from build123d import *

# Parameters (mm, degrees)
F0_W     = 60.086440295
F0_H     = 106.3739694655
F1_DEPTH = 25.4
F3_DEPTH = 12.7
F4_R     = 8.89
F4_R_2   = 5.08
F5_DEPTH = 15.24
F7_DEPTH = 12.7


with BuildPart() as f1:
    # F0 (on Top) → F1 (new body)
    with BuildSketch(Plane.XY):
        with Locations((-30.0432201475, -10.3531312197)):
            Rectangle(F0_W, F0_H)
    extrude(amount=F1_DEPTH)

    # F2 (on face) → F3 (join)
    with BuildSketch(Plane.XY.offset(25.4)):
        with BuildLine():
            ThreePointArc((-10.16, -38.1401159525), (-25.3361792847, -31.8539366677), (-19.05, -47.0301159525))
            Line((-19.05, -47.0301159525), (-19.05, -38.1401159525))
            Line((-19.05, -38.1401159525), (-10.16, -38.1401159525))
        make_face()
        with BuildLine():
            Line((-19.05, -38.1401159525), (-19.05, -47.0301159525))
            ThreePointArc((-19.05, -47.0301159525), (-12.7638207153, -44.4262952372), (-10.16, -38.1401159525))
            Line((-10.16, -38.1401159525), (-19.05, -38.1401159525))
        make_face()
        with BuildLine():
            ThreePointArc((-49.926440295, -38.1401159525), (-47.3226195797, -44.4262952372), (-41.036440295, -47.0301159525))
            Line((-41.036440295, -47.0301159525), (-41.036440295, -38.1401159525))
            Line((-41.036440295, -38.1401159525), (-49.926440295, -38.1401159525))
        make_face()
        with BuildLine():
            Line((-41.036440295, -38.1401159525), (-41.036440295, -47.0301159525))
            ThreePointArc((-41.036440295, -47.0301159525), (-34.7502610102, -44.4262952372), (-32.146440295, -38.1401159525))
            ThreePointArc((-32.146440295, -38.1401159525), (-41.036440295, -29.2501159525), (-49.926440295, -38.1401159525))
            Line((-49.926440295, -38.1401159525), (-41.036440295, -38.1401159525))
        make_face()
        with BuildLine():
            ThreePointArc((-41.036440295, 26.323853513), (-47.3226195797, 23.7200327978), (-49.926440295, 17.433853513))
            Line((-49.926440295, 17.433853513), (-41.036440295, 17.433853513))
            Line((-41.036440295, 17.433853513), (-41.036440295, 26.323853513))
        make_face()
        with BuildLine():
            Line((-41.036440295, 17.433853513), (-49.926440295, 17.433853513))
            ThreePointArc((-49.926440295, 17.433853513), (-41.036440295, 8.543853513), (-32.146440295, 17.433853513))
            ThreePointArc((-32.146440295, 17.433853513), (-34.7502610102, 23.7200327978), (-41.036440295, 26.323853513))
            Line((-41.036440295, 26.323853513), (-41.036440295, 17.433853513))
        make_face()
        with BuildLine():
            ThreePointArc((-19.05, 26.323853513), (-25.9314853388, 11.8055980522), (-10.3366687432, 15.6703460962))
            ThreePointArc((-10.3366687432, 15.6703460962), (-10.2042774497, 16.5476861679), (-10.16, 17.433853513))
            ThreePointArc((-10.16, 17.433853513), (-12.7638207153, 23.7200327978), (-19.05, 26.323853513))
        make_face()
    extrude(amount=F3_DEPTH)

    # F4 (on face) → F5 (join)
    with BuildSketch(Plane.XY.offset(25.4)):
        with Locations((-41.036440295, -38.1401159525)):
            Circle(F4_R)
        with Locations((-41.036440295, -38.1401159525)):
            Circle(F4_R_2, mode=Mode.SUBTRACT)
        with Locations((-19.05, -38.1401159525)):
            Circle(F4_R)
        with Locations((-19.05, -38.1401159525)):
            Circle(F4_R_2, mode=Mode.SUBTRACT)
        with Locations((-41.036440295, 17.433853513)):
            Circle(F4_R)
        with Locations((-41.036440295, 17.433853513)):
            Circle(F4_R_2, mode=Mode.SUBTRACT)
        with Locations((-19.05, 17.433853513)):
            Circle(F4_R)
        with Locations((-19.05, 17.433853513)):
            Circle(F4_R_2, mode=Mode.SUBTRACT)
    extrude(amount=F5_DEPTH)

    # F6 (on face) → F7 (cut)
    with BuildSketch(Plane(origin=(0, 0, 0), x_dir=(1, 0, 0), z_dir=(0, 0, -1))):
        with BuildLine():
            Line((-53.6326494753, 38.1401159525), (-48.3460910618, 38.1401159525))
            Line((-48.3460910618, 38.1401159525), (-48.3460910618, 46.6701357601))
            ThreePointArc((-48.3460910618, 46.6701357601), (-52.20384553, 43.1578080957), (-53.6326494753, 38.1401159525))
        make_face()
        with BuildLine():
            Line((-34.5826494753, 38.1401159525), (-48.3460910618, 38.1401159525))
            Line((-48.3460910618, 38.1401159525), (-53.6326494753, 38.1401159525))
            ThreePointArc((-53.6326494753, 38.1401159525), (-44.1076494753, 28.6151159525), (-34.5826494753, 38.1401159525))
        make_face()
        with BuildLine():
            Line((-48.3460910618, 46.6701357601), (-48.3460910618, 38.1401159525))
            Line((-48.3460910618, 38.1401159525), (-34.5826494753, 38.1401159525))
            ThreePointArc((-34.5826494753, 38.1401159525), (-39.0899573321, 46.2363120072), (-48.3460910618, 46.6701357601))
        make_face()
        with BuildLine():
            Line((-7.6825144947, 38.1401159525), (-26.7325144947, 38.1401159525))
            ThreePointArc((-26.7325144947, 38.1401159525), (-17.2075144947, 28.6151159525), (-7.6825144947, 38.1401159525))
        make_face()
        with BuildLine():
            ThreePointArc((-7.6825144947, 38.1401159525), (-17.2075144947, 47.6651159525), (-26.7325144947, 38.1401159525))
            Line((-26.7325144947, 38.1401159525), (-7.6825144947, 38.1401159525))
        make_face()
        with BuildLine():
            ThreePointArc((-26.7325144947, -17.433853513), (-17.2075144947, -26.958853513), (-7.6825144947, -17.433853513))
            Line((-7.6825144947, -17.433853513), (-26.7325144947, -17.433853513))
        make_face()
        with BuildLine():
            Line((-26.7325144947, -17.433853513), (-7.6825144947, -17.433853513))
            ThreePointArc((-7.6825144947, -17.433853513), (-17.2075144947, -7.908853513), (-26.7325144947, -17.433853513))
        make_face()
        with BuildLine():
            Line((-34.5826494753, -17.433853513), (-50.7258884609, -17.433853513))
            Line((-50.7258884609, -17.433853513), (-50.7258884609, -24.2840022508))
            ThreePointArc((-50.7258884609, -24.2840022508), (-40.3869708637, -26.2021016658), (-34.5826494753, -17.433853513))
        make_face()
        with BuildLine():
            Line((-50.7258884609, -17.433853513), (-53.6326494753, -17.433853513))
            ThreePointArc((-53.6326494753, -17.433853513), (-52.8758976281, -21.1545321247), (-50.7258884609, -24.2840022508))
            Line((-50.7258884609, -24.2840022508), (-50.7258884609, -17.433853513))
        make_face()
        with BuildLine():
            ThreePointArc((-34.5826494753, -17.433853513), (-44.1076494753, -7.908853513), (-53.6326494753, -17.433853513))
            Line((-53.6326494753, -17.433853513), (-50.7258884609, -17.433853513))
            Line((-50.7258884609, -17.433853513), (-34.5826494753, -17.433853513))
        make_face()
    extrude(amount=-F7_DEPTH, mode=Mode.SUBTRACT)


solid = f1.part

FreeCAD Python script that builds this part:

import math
import FreeCAD as App
import Part
import Sketcher

V = App.Vector
Q = App.Units.Quantity

doc = App.newDocument("Part")
params = doc.addObject("Spreadsheet::Sheet", "Params")
for row, (alias, value) in enumerate([
    ("pad1_length", "1 in"),
    ("sketch2_radius", "0.35 in"),
    ("pad2_length", "0.5 in"),
    ("sketch3_diameter", "0.7 in"),
    ("sketch3_diameter2", "0.4 in"),
    ("pad3_length", "0.6 in"),
    ("sketch4_diameter", "0.75 in"),
    ("pocket1_length", "0.5 in"),
], start=1):
    params.set(f"A{row}", alias)
    params.set(f"B{row}", "=" + value)
    params.setAlias(f"B{row}", alias)

body = doc.addObject("PartDesign::Body", "Body")

sketch1 = body.newObject("Sketcher::SketchObject", "Sketch")
sketch1.AttachmentSupport = (doc.getObject("XY_Plane"), [""])
sketch1.MapMode = "FlatFace"
sketch1.addGeometry([
    Part.LineSegment(V(-60, 43, 0), V(-60, -64, 0)),
    Part.LineSegment(V(-60, -64, 0), V(0, -64, 0)),
    Part.LineSegment(V(0, -64, 0), V(0, 43, 0)),
    Part.LineSegment(V(0, 43, 0), V(-60, 43, 0)),
], False)
sketch1.addConstraint([
    Sketcher.Constraint("Coincident", 0, 2, 1, 1),
    Sketcher.Constraint("Coincident", 1, 2, 2, 1),
    Sketcher.Constraint("Coincident", 2, 2, 3, 1),
    Sketcher.Constraint("Coincident", 3, 2, 0, 1),
    Sketcher.Constraint("Vertical", 0),
    Sketcher.Constraint("Horizontal", 1),
    Sketcher.Constraint("Vertical", 2),
    Sketcher.Constraint("Horizontal", 3),
    Sketcher.Constraint("PointOnObject", 1, 2, -2),
    Sketcher.Constraint("DistanceX", 1, 1, 1, 2, 60.08644),
    Sketcher.Constraint("DistanceY", 0, 2, 0, 1, 106.373969),
    Sketcher.Constraint("DistanceY", 0, 2, -1, 1, 63.540116),
])
pad1 = body.newObject("PartDesign::Pad", "Pad")
pad1.Profile = sketch1
pad1.setExpression("Length", "Params.pad1_length")

sketch2 = body.newObject("Sketcher::SketchObject", "Sketch001")
sketch2.AttachmentSupport = (doc.getObject("XY_Plane"), [""])
sketch2.MapMode = "FlatFace"
sketch2.AttachmentOffset = App.Placement(V(0, 0, 1 * 25.4), App.Rotation())
sketch2.addGeometry([
    Part.ArcOfCircle(Part.Circle(V(-19.1, -38.1, 0), V(0, 0, 1), 8.9), math.radians(0), math.radians(270)),
    Part.ArcOfCircle(Part.Circle(V(-19.1, -38.1, 0), V(0, 0, 1), 8.9), math.radians(-90), math.radians(0)),
    Part.ArcOfCircle(Part.Circle(V(-41, -38.1, 0), V(0, 0, 1), 8.9), math.radians(180), math.radians(270)),
    Part.ArcOfCircle(Part.Circle(V(-41, -38.1, 0), V(0, 0, 1), 8.9), math.radians(-90), math.radians(180)),
    Part.ArcOfCircle(Part.Circle(V(-41, 17.4, 0), V(0, 0, 1), 8.9), math.radians(90), math.radians(360)),
    Part.ArcOfCircle(Part.Circle(V(-41, 17.4, 0), V(0, 0, 1), 8.9), math.radians(0), math.radians(90)),
    Part.ArcOfCircle(Part.Circle(V(-19.1, 17.4, 0), V(0, 0, 1), 8.9), math.radians(90), math.radians(349)),
    Part.ArcOfCircle(Part.Circle(V(-19, 17.4, 0), V(0, 0, 1), 8.9), math.radians(-11.44), math.radians(0)),
    Part.ArcOfCircle(Part.Circle(V(-19.1, 17.4, 0), V(0, 0, 1), 8.9), math.radians(0), math.radians(90)),
], False)
sketch2.addConstraint([
    Sketcher.Constraint("Tangent", 0, 1, 1, 2),
    Sketcher.Constraint("Coincident", 1, 1, 0, 2),
    Sketcher.Constraint("Tangent", 2, 1, 3, 2),
    Sketcher.Constraint("Coincident", 3, 1, 2, 2),
    Sketcher.Constraint("Tangent", 4, 1, 5, 2),
    Sketcher.Constraint("Coincident", 5, 1, 4, 2),
    Sketcher.Constraint("Tangent", 6, 2, 7, 1),
    Sketcher.Constraint("Tangent", 7, 2, 8, 1),
    Sketcher.Constraint("Tangent", 8, 2, 6, 1),
    Sketcher.Constraint("Equal", 1, 2),
    Sketcher.Constraint("Equal", 3, 4),
    Sketcher.Constraint("Equal", 5, 6),
    Sketcher.Constraint("Horizontal", 1, 3, 2, 3),
    Sketcher.Constraint("Horizontal", 5, 3, 6, 3),
    Sketcher.Constraint("Horizontal", 3, 3, 0, 1),
    Sketcher.Constraint("Horizontal", 0, 1, 2, 1),
    Sketcher.Constraint("Horizontal", 8, 3, 5, 1),
    Sketcher.Constraint("Horizontal", 5, 1, 7, 2),
    Sketcher.Constraint("Vertical", 3, 3, 4, 3),
    Sketcher.Constraint("Vertical", 1, 3, 6, 3),
    Sketcher.Constraint("Vertical", 8, 3, 1, 1),
    Sketcher.Constraint("Vertical", 5, 3, 3, 1),
    Sketcher.Constraint("Vertical", 3, 1, 4, 1),
    Sketcher.Constraint("Vertical", 1, 1, 8, 2),
    Sketcher.Constraint("Radius", 0, Q("0.35 in")),
    Sketcher.Constraint("DistanceX", 0, 1, -1, 1, Q("0.4 in")),
    Sketcher.Constraint("DistanceX", 2, 3, -1, 1, 41.03644),
    Sketcher.Constraint("DistanceX", 6, 2, -1, 1, 10.336669),
    Sketcher.Constraint("DistanceY", 2, 3, 4, 3, 55.573969),
    Sketcher.Constraint("DistanceY", 0, 3, -1, 1, 38.140116),
])
sketch2.setExpression("Constraints[24]", "Params.sketch2_radius")
pad2 = body.newObject("PartDesign::Pad", "Pad001")
pad2.Profile = sketch2
pad2.setExpression("Length", "Params.pad2_length")

sketch3 = body.newObject("Sketcher::SketchObject", "Sketch002")
sketch3.AttachmentSupport = (doc.getObject("XY_Plane"), [""])
sketch3.MapMode = "FlatFace"
sketch3.AttachmentOffset = App.Placement(V(0, 0, 1 * 25.4), App.Rotation())
sketch3.addGeometry([
    Part.Circle(V(-41, -38, 0), V(0, 0, 1), 9),
    Part.Circle(V(-41, -38, 0), V(0, 0, 1), 5),
    Part.Circle(V(-19, -38, 0), V(0, 0, 1), 9),
    Part.Circle(V(-19, -38, 0), V(0, 0, 1), 5),
    Part.Circle(V(-41, 17, 0), V(0, 0, 1), 9),
    Part.Circle(V(-41, 17, 0), V(0, 0, 1), 5),
    Part.Circle(V(-19, 17, 0), V(0, 0, 1), 9),
    Part.Circle(V(-19, 17, 0), V(0, 0, 1), 5),
], False)
sketch3.addConstraint([
    Sketcher.Constraint("Coincident", 1, 3, 0, 3),
    Sketcher.Constraint("Coincident", 3, 3, 2, 3),
    Sketcher.Constraint("Coincident", 5, 3, 4, 3),
    Sketcher.Constraint("Coincident", 7, 3, 6, 3),
    Sketcher.Constraint("Equal", 0, 2),
    Sketcher.Constraint("Equal", 1, 3),
    Sketcher.Constraint("Equal", 2, 4),
    Sketcher.Constraint("Equal", 3, 5),
    Sketcher.Constraint("Equal", 4, 6),
    Sketcher.Constraint("Equal", 5, 7),
    Sketcher.Constraint("Horizontal", 1, 3, 2, 3),
    Sketcher.Constraint("Horizontal", 5, 3, 6, 3),
    Sketcher.Constraint("Vertical", 1, 3, 4, 3),
    Sketcher.Constraint("Vertical", 3, 3, 6, 3),
    Sketcher.Constraint("Diameter", 0, Q("0.7 in")),
    Sketcher.Constraint("Diameter", 1, Q("0.4 in")),
    Sketcher.Constraint("DistanceX", 2, 3, -1, 1, Q("0.75 in")),
    Sketcher.Constraint("DistanceX", 0, 3, -1, 1, 41.03644),
    Sketcher.Constraint("DistanceY", 0, 3, 4, 3, 55.573969),
    Sketcher.Constraint("DistanceY", 0, 3, -1, 1, 38.140116),
])
sketch3.setExpression("Constraints[14]", "Params.sketch3_diameter")
sketch3.setExpression("Constraints[15]", "Params.sketch3_diameter2")
pad3 = body.newObject("PartDesign::Pad", "Pad002")
pad3.Profile = sketch3
pad3.setExpression("Length", "Params.pad3_length")

sketch4 = body.newObject("Sketcher::SketchObject", "Sketch003")
sketch4.AttachmentSupport = (doc.getObject("XY_Plane"), [""])
sketch4.MapMode = "FlatFace"
sketch4.addGeometry([
    Part.Circle(V(-44, -38, 0), V(0, 0, 1), 10),
    Part.Circle(V(-17, -38, 0), V(0, 0, 1), 10),
    Part.Circle(V(-17, 17, 0), V(0, 0, 1), 10),
    Part.ArcOfCircle(Part.Circle(V(-44, 17, 0), V(0, 0, 1), 10), math.radians(134), math.radians(180)),
    Part.ArcOfCircle(Part.Circle(V(-44, 17, 0), V(0, 0, 1), 10), math.radians(0), math.radians(134)),
    Part.ArcOfCircle(Part.Circle(V(-44, 17, 0), V(0, 0, 1), 10), math.radians(180), math.radians(360)),
], False)
sketch4.addConstraint([
    Sketcher.Constraint("Tangent", 3, 1, 4, 2),
    Sketcher.Constraint("Tangent", 4, 1, 5, 2),
    Sketcher.Constraint("Tangent", 5, 1, 3, 2),
    Sketcher.Constraint("Equal", 0, 1),
    Sketcher.Constraint("Equal", 1, 2),
    Sketcher.Constraint("Equal", 2, 3),
    Sketcher.Constraint("Horizontal", 0, 3, 1, 3),
    Sketcher.Constraint("Horizontal", 2, 3, 3, 3),
    Sketcher.Constraint("Horizontal", 5, 3, 4, 1),
    Sketcher.Constraint("Horizontal", 4, 1, 5, 1),
    Sketcher.Constraint("Vertical", 1, 3, 2, 3),
    Sketcher.Constraint("Vertical", 0, 3, 3, 3),
    Sketcher.Constraint("Diameter", 0, Q("0.75 in")),
    Sketcher.Constraint("DistanceX", 0, 3, -1, 1, 44.107649),
    Sketcher.Constraint("DistanceX", 3, 1, -1, 1, 50.725888),
    Sketcher.Constraint("DistanceY", 1, 3, 2, 3, 55.573969),
    Sketcher.Constraint("DistanceY", 0, 3, -1, 1, 38.140116),
    Sketcher.Constraint("DistanceX", 1, 3, -1, 1, 17.207514),
])
sketch4.setExpression("Constraints[12]", "Params.sketch4_diameter")
pocket1 = body.newObject("PartDesign::Pocket", "Pocket")
pocket1.Profile = sketch4
pocket1.setExpression("Length", "Params.pocket1_length")
pocket1.Reversed = True

doc.recompute()
